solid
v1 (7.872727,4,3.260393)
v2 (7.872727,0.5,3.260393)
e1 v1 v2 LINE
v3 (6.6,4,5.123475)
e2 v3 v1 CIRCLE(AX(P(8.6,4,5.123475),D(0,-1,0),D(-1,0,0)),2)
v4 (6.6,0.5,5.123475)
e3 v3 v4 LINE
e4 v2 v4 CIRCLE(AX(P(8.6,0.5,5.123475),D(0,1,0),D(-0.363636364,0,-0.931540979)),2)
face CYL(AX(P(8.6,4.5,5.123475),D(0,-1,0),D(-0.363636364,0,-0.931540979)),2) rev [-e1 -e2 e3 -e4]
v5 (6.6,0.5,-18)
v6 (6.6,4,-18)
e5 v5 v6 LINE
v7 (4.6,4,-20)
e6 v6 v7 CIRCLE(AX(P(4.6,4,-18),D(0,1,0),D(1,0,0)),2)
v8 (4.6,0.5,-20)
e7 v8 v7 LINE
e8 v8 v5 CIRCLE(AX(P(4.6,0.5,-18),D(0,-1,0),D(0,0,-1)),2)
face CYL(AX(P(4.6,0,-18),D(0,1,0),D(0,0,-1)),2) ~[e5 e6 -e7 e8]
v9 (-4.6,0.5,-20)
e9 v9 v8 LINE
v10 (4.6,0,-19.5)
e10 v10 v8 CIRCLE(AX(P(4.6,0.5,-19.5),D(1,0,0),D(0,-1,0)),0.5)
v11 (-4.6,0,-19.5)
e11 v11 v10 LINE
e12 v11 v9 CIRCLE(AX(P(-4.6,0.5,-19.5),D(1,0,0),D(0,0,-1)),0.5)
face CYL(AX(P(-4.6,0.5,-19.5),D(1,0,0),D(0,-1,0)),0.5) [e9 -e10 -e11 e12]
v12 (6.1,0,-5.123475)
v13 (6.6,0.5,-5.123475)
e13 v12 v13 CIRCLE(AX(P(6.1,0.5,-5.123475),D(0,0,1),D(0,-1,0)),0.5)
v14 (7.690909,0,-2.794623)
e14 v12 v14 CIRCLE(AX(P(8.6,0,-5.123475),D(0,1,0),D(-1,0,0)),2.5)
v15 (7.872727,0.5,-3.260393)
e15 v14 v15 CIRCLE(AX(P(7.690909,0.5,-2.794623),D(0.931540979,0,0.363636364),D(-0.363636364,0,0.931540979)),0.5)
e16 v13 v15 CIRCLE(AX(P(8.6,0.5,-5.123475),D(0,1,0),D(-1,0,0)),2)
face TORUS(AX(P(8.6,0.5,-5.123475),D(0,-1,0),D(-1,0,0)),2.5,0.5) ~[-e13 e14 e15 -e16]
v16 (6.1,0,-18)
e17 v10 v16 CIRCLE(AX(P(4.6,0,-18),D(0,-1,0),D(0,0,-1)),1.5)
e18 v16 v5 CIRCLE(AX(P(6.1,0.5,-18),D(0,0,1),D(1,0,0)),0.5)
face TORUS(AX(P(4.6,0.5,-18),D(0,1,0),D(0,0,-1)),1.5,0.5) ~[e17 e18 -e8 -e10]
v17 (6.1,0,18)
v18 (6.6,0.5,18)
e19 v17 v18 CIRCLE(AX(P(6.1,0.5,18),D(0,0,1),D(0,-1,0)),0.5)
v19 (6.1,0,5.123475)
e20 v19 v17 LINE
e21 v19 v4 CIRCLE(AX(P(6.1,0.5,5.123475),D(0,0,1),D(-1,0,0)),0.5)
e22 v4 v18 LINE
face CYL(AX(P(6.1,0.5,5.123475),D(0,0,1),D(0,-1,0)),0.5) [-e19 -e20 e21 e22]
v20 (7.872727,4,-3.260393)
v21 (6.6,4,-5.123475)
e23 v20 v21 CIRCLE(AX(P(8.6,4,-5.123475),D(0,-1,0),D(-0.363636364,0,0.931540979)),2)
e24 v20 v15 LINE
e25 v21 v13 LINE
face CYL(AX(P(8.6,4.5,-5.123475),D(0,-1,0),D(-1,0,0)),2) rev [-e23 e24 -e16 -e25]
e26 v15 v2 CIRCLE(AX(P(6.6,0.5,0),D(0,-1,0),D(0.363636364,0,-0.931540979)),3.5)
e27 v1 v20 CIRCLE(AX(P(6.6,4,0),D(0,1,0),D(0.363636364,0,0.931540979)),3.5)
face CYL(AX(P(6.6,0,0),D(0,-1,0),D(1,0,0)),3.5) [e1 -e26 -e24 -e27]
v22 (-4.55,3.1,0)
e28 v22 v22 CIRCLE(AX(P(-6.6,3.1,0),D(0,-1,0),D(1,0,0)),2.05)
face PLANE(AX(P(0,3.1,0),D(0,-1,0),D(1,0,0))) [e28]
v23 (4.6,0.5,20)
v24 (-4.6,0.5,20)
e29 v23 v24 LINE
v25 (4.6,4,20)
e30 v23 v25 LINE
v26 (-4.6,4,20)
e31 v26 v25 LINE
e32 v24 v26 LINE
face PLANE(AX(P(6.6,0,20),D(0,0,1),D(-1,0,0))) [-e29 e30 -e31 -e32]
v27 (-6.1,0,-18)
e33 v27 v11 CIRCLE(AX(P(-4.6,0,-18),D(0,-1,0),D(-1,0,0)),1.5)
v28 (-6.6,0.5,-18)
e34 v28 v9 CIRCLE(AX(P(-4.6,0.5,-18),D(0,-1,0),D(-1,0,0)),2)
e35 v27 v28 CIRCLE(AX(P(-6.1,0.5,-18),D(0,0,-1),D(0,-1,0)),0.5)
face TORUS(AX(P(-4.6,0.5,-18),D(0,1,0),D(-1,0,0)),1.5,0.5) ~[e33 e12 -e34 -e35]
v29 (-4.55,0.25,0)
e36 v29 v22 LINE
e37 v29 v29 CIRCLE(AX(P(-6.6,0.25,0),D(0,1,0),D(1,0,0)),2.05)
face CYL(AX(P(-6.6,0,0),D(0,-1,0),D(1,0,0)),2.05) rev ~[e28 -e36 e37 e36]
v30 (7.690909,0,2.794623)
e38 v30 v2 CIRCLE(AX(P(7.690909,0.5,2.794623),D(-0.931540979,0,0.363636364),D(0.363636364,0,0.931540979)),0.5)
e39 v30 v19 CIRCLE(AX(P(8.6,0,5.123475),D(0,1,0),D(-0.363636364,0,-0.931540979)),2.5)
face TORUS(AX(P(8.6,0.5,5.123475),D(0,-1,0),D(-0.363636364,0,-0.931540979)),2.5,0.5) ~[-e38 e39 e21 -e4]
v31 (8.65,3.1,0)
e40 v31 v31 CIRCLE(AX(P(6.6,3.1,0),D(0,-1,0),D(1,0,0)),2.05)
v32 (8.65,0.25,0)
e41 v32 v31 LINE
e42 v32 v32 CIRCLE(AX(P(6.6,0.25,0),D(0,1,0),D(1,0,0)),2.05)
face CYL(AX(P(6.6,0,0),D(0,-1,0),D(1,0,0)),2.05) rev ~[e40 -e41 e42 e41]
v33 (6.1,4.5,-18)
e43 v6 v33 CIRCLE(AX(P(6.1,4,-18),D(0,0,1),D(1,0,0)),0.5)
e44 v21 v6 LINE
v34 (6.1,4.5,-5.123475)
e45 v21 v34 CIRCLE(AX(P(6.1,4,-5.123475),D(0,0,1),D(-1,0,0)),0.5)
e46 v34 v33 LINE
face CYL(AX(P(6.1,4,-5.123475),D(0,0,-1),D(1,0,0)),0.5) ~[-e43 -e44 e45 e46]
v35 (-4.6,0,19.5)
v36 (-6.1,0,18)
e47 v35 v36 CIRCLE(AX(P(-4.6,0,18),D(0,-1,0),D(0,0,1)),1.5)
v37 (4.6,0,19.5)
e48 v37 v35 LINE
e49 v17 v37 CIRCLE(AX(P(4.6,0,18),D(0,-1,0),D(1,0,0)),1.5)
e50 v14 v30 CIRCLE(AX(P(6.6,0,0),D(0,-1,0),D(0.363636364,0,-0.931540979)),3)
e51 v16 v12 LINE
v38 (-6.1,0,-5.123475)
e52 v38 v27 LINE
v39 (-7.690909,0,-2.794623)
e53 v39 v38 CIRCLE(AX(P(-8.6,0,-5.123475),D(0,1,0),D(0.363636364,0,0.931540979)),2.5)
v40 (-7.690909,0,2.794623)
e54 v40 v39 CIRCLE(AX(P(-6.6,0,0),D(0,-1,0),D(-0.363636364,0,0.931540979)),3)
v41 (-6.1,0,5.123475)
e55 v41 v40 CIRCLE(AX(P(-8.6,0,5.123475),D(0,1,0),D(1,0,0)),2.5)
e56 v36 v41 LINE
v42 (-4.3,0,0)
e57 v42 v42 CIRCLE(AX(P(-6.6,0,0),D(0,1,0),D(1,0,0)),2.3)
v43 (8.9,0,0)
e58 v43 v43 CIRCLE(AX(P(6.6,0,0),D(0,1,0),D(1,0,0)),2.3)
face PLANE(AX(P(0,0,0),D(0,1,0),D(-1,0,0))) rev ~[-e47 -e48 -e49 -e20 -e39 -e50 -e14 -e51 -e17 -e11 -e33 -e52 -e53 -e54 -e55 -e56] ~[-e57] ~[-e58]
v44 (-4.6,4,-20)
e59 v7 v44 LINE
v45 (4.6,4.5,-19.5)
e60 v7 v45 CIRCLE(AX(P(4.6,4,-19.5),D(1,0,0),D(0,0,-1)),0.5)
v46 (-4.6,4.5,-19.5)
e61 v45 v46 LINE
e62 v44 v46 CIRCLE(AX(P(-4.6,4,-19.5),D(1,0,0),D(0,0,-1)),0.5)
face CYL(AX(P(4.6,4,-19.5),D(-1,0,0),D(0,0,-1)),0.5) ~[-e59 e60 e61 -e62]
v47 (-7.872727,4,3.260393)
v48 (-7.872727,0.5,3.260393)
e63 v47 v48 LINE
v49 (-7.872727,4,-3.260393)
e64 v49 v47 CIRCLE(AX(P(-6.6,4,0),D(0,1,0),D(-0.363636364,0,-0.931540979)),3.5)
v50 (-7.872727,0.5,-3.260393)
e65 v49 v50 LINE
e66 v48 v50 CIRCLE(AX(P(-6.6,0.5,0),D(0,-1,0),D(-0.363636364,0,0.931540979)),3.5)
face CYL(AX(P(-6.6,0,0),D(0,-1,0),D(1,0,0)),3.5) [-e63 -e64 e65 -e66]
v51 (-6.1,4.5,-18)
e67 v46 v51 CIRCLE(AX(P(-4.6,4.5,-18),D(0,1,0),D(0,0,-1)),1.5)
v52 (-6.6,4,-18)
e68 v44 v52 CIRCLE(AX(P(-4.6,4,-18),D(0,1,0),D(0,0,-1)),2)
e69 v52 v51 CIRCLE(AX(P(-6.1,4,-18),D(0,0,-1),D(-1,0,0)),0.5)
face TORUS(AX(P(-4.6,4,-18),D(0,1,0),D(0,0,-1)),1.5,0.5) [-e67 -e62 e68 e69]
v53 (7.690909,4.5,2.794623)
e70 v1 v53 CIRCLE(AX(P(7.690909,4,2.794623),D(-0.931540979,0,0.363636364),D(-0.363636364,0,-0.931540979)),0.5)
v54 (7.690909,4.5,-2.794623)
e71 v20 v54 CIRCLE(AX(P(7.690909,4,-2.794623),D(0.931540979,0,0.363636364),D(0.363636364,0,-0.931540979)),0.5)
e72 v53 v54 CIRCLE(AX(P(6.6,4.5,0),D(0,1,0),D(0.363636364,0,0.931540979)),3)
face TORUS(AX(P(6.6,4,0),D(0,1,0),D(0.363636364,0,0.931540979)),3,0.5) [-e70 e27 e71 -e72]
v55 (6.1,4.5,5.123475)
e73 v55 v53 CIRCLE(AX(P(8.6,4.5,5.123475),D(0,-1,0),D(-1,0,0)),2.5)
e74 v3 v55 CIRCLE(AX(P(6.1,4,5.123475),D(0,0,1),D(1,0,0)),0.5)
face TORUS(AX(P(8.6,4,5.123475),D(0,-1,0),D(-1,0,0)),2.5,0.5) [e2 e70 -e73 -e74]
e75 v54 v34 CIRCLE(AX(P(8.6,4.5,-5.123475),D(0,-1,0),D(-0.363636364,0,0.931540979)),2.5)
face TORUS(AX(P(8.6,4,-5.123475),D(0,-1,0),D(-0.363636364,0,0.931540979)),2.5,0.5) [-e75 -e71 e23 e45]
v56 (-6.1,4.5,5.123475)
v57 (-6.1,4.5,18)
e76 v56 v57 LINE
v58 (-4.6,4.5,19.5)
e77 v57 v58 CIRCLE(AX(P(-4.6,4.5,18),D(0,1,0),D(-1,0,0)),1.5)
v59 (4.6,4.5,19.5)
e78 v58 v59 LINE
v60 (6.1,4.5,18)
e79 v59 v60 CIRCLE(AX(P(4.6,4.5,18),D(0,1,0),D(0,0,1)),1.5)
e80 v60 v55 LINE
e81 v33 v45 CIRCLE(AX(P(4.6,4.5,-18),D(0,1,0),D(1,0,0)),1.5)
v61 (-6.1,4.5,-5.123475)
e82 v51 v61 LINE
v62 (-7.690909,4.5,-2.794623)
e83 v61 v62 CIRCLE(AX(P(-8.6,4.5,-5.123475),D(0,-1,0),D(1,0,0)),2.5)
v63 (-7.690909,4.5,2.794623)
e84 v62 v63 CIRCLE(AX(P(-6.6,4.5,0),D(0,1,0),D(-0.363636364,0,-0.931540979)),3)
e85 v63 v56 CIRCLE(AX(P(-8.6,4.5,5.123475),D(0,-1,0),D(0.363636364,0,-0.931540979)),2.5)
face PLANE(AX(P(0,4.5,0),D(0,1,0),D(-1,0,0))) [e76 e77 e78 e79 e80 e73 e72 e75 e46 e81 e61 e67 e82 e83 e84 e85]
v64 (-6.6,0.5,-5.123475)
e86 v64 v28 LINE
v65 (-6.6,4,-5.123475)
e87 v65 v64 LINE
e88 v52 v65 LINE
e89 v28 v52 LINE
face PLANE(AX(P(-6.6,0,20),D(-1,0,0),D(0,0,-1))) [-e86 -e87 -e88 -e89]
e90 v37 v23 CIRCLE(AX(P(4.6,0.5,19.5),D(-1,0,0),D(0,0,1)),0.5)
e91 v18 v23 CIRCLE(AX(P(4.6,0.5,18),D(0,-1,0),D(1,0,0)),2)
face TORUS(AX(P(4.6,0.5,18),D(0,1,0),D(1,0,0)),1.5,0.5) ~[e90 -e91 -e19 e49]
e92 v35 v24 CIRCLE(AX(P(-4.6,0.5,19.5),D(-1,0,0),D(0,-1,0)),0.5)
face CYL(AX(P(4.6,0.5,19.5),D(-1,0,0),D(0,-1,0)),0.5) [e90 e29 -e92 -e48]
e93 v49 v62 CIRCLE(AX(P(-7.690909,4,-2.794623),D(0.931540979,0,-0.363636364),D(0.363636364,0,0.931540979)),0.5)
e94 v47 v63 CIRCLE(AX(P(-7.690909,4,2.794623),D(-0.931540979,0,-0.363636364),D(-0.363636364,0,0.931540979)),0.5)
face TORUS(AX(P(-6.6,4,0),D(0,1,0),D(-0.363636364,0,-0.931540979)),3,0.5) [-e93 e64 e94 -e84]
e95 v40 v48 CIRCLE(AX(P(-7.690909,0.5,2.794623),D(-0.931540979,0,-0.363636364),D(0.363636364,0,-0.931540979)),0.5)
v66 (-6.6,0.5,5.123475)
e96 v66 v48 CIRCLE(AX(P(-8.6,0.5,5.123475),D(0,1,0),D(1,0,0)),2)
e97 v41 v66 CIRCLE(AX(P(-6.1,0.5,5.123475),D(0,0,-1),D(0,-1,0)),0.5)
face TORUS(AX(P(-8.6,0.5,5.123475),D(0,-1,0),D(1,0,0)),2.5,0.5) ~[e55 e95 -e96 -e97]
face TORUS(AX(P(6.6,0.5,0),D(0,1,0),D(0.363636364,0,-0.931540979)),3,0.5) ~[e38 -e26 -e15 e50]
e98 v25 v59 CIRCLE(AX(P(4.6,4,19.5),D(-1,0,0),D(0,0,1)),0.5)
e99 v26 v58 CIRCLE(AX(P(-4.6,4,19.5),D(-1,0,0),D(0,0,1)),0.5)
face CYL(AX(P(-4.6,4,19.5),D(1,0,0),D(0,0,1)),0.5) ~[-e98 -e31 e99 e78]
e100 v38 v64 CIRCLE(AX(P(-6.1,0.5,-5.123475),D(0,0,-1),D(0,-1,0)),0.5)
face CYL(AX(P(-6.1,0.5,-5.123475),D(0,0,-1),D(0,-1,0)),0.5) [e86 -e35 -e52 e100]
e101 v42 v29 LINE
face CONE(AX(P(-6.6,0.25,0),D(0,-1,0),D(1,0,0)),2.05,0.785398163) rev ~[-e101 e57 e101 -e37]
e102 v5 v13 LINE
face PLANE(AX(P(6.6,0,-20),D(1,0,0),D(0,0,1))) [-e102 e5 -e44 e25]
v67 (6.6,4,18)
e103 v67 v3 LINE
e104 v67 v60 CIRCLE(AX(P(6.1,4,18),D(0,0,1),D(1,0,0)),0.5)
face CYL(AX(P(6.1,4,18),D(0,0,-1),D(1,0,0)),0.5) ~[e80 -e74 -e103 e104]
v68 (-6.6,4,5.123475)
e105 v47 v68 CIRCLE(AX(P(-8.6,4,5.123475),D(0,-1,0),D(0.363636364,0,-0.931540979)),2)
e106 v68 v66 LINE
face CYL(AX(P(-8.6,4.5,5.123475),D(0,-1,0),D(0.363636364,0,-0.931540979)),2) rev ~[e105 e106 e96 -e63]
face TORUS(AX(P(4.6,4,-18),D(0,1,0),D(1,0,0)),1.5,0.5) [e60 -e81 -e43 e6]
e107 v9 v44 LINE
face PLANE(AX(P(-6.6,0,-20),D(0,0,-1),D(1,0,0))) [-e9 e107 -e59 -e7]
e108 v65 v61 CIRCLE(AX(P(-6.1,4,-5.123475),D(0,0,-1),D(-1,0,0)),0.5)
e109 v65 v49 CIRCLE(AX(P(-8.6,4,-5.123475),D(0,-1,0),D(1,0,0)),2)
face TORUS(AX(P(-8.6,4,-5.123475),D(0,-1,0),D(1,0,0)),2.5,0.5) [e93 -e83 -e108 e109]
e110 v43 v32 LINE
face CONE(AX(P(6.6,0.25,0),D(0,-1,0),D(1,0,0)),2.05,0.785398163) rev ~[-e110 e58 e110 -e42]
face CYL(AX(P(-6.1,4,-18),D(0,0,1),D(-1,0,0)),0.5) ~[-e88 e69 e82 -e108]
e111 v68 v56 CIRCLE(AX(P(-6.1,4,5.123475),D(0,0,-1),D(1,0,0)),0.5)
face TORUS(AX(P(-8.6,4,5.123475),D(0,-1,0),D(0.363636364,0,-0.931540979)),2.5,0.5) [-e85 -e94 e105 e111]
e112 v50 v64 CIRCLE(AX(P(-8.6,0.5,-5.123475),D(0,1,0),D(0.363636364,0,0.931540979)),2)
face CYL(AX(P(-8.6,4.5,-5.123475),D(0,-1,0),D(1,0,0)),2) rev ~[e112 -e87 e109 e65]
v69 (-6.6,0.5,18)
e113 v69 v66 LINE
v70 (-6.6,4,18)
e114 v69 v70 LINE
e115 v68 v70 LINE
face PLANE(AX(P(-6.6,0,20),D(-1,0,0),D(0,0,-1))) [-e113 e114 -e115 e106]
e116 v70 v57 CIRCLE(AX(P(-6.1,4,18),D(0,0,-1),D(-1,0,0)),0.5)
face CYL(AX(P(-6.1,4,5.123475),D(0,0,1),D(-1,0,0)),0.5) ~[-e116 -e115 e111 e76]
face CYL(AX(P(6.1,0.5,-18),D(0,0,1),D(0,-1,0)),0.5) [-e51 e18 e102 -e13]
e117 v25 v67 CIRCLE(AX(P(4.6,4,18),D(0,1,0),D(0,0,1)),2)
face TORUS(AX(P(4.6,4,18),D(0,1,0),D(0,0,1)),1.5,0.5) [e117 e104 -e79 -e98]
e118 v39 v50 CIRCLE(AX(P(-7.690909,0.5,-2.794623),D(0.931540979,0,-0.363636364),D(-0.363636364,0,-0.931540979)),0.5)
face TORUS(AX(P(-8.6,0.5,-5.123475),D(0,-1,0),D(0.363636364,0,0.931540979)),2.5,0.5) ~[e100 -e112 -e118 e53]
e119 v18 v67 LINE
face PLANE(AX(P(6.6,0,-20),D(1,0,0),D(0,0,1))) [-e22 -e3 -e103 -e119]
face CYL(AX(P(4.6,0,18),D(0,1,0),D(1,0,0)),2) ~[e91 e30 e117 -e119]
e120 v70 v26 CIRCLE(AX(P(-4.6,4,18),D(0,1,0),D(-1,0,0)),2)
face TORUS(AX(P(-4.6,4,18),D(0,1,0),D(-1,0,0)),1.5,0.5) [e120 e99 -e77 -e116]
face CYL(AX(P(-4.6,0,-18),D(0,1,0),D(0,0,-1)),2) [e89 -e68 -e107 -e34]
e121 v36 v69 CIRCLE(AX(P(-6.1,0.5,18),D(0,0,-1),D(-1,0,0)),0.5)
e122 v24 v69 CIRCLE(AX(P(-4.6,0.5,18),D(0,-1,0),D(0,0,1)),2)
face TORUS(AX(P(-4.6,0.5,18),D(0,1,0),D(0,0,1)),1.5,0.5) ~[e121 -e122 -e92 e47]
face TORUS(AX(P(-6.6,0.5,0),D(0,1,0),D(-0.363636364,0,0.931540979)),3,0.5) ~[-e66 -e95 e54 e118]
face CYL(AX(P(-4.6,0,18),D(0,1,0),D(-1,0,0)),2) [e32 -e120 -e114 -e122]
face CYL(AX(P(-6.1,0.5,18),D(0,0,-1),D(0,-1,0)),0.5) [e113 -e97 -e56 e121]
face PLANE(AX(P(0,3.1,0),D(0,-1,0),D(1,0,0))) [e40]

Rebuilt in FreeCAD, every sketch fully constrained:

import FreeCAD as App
import Part
import Sketcher
Q = App.Units.Quantity


def edges_at(feature, points):
    """Names of the edges that pass closest to the given points."""
    edges = feature.Shape.Edges
    near = lambda p: min(range(len(edges)), key=lambda i: edges[i].distToShape(Part.Vertex(*p))[0])
    return sorted({f"Edge{near(p) + 1}" for p in points})

doc = App.newDocument("Part")
body = doc.addObject("PartDesign::Body", "Body")

# Sketch on XZ plane
sketch1 = body.newObject("Sketcher::SketchObject", "Sketch")
sketch1.AttachmentSupport = (doc.getObject("XZ_Plane"), [""])
sketch1.MapMode = "FlatFace"
sketch1.addGeometry([
    Part.LineSegment(App.Vector(6.6, -20, 0), App.Vector(-6.6, -20, 0)),
    Part.LineSegment(App.Vector(-6.6, -20, 0), App.Vector(-6.6, 20, 0)),
    Part.LineSegment(App.Vector(-6.6, 20, 0), App.Vector(6.6, 20, 0)),
    Part.LineSegment(App.Vector(6.6, 20, 0), App.Vector(6.6, -20, 0)),
], False)
sketch1.addConstraint([
    Sketcher.Constraint("Coincident", 0, 2, 1, 1),
    Sketcher.Constraint("Coincident", 1, 2, 2, 1),
    Sketcher.Constraint("Coincident", 2, 2, 3, 1),
    Sketcher.Constraint("Coincident", 3, 2, 0, 1),
    Sketcher.Constraint("Horizontal", 0),
    Sketcher.Constraint("Vertical", 1),
    Sketcher.Constraint("Horizontal", 2),
    Sketcher.Constraint("Vertical", 3),
    Sketcher.Constraint("Symmetric", 0, 2, 2, 2, -1, 1),
    Sketcher.Constraint("DistanceY", 1, 1, 1, 2, Q("40 mm")),
    Sketcher.Constraint("DistanceX", 0, 2, 0, 1, Q("13.2 mm")),
])
pad1 = body.newObject("PartDesign::Pad", "Pad")
pad1.Profile = sketch1
pad1.Length = 4.5
pad1.Reversed = True

# Sketch on XZ plane
sketch2 = body.newObject("Sketcher::SketchObject", "Sketch001")
sketch2.AttachmentSupport = (doc.getObject("XZ_Plane"), [""])
sketch2.MapMode = "FlatFace"
sketch2.addGeometry([
    Part.Circle(App.Vector(6.6, 0, 0), App.Vector(0, 0, 1), 3.5),
    Part.Circle(App.Vector(-6.6, 0, 0), App.Vector(0, 0, 1), 3.5),
], False)
sketch2.addConstraint([
    Sketcher.Constraint("Equal", 0, 1),
    Sketcher.Constraint("Symmetric", 0, 3, 1, 3, -1, 1),
    Sketcher.Constraint("PointOnObject", 0, 3, -1),
    Sketcher.Constraint("Diameter", 0, Q("7 mm")),
    Sketcher.Constraint("DistanceX", -1, 1, 0, 3, Q("6.6 mm")),
])
pad2 = body.newObject("PartDesign::Pad", "Pad001")
pad2.Profile = sketch2
pad2.Length = 4.5
pad2.Reversed = True

# Sketch on XZ plane
sketch3 = body.newObject("Sketcher::SketchObject", "Sketch002")
sketch3.AttachmentSupport = (doc.getObject("XZ_Plane"), [""])
sketch3.MapMode = "FlatFace"
sketch3.addGeometry([
    Part.Circle(App.Vector(6.6, 0, 0), App.Vector(0, 0, 1), 2.05),
    Part.Circle(App.Vector(-6.6, 0, 0), App.Vector(0, 0, 1), 2.05),
], False)
sketch3.addConstraint([
    Sketcher.Constraint("Equal", 0, 1),
    Sketcher.Constraint("Symmetric", 0, 3, 1, 3, -1, 1),
    Sketcher.Constraint("PointOnObject", 0, 3, -1),
    Sketcher.Constraint("Diameter", 0, Q("4.1 mm")),
    Sketcher.Constraint("DistanceX", -1, 1, 0, 3, Q("6.6 mm")),
])
pocket1 = body.newObject("PartDesign::Pocket", "Pocket")
pocket1.Profile = sketch3
pocket1.Length = 3.1
doc.recompute()

fillet = body.newObject("PartDesign::Fillet", "Fillet")
fillet.Base = (pocket1, edges_at(pocket1, [
    (6.6, 2.25, -20),
    (-6.6, 2.25, -20),
    (6.6, 2.25, 20),
    (-6.6, 2.25, 20),
    (6.6, 2.25, -3.5),
    (6.6, 2.25, 3.5),
    (-6.6, 2.25, -3.5),
    (-6.6, 2.25, 3.5),
]))
fillet.Radius = 2
doc.recompute()

fillet2 = body.newObject("PartDesign::Fillet", "Fillet001")
fillet2.Base = (fillet, edges_at(fillet, [
    (-6.6, 0, -11.562),
    (-6.014, 0, -19.414),
    (0, 0, -20),
    (6.014, 0, -19.414),
    (6.6, 0, -11.562),
    (10.1, 0, 0),
    (6.014, 0, 19.414),
    (6.6, 0, 11.562),
    (0, 0, 20),
    (-6.014, 0, 19.414),
    (-6.6, 0, 11.562),
    (-10.1, 0, 0),
    (-6.014, 4.5, -19.414),
    (-6.014, 4.5, 19.414),
    (-6.6, 4.5, 11.562),
    (0, 4.5, 20),
    (6.014, 4.5, 19.414),
    (6.6, 4.5, 11.562),
    (6.014, 4.5, -19.414),
    (10.1, 4.5, 0),
    (6.6, 4.5, -11.562),
    (0, 4.5, -20),
    (-6.6, 4.5, -11.562),
    (-10.1, 4.5, 0),
]))
fillet2.Radius = 0.5
doc.recompute()

chamfer = body.newObject("PartDesign::Chamfer", "Chamfer")
chamfer.Base = (fillet2, edges_at(fillet2, [(-8.65, 0, 0), (4.55, 0, 0)]))
chamfer.Size = 0.25

doc.recompute()
